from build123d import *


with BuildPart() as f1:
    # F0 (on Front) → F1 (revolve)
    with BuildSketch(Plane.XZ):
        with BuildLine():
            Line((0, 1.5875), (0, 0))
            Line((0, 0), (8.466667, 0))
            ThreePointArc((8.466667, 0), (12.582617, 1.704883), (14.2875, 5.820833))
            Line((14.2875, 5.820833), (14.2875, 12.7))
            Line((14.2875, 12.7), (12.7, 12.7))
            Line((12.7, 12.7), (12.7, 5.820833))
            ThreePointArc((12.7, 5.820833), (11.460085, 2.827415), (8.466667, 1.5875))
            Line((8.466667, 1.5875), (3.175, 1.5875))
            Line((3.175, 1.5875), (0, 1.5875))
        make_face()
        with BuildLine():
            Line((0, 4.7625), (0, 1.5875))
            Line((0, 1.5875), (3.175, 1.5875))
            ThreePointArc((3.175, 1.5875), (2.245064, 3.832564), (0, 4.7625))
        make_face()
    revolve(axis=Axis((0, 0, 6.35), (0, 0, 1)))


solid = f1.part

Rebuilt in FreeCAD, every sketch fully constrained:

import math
import FreeCAD as App
import Part
import Sketcher
Q = App.Units.Quantity

doc = App.newDocument("Part")
body = doc.addObject("PartDesign::Body", "Body")

# Sketch on XZ plane
sketch1 = doc.addObject("Sketcher::SketchObject", "Sketch")
body.addObject(sketch1)
sketch1.AttachmentSupport = (doc.XZ_Plane, [""])
sketch1.MapMode = "FlatFace"
sketch1.addGeometry([
    Part.LineSegment(App.Vector(0, 0, 0), App.Vector(8.5, 0, 0)),  # 0
    Part.ArcOfCircle(Part.Circle(App.Vector(8.5, 5.8, 0), App.Vector(0, 0, 1), 5.8), math.radians(-90), math.radians(0)),  # 1
    Part.LineSegment(App.Vector(14.3, 5.8, 0), App.Vector(14.3, 12.7, 0)),  # 2
    Part.LineSegment(App.Vector(14.3, 12.7, 0), App.Vector(12.7, 12.7, 0)),  # 3
    Part.LineSegment(App.Vector(12.7, 12.7, 0), App.Vector(12.7, 5.8, 0)),  # 4
    Part.ArcOfCircle(Part.Circle(App.Vector(8.5, 5.8, 0), App.Vector(0, 0, 1), 4.2), math.radians(-90), math.radians(0)),  # 5
    Part.LineSegment(App.Vector(8.5, 1.6, 0), App.Vector(3.2, 1.6, 0)),  # 6
    Part.ArcOfCircle(Part.Circle(App.Vector(0, 1.6, 0), App.Vector(0, 0, 1), 3.2), math.radians(0), math.radians(90)),  # 7
    Part.LineSegment(App.Vector(0, 4.8, 0), App.Vector(0, 0, 0)),  # 8
], False)
sketch1.addConstraint([
    Sketcher.Constraint("Tangent", 0, 2, 1, 1),
    Sketcher.Constraint("Tangent", 1, 2, 2, 1),
    Sketcher.Constraint("Coincident", 2, 2, 3, 1),
    Sketcher.Constraint("Coincident", 3, 2, 4, 1),
    Sketcher.Constraint("Tangent", 4, 2, 5, 2),
    Sketcher.Constraint("Tangent", 5, 1, 6, 1),
    Sketcher.Constraint("Coincident", 6, 2, 7, 1),
    Sketcher.Constraint("Coincident", 7, 2, 8, 1),
    Sketcher.Constraint("Coincident", 8, 2, 0, 1),
    Sketcher.Constraint("Horizontal", 0),
    Sketcher.Constraint("Vertical", 2),
    Sketcher.Constraint("Horizontal", 3),
    Sketcher.Constraint("Vertical", 4),
    Sketcher.Constraint("Horizontal", 6),
    Sketcher.Constraint("Vertical", 8),
    Sketcher.Constraint("Coincident", 8, 2, -1, 1),
    Sketcher.Constraint("Coincident", 5, 3, 1, 3),
    Sketcher.Constraint("PointOnObject", 7, 3, -2),
    Sketcher.Constraint("Horizontal", 7, 3, 5, 1),
    Sketcher.Constraint("Radius", 7, Q("0.125 in")),
    Sketcher.Constraint("DistanceY", -1, 1, 2, 2, Q("0.5 in")),
    Sketcher.Constraint("DistanceX", -1, 1, 3, 2, Q("0.5 in")),
    Sketcher.Constraint("DistanceX", 3, 2, 3, 1, Q("0.0625 in")),
    Sketcher.Constraint("Radius", 1, Q("5.820835 mm")),
])
revolution = doc.addObject("PartDesign::Revolution", "Revolution")
body.addObject(revolution)
revolution.Profile = sketch1
revolution.ReferenceAxis = (sketch1, ["V_Axis"])
revolution.Angle = 360

doc.recompute()
